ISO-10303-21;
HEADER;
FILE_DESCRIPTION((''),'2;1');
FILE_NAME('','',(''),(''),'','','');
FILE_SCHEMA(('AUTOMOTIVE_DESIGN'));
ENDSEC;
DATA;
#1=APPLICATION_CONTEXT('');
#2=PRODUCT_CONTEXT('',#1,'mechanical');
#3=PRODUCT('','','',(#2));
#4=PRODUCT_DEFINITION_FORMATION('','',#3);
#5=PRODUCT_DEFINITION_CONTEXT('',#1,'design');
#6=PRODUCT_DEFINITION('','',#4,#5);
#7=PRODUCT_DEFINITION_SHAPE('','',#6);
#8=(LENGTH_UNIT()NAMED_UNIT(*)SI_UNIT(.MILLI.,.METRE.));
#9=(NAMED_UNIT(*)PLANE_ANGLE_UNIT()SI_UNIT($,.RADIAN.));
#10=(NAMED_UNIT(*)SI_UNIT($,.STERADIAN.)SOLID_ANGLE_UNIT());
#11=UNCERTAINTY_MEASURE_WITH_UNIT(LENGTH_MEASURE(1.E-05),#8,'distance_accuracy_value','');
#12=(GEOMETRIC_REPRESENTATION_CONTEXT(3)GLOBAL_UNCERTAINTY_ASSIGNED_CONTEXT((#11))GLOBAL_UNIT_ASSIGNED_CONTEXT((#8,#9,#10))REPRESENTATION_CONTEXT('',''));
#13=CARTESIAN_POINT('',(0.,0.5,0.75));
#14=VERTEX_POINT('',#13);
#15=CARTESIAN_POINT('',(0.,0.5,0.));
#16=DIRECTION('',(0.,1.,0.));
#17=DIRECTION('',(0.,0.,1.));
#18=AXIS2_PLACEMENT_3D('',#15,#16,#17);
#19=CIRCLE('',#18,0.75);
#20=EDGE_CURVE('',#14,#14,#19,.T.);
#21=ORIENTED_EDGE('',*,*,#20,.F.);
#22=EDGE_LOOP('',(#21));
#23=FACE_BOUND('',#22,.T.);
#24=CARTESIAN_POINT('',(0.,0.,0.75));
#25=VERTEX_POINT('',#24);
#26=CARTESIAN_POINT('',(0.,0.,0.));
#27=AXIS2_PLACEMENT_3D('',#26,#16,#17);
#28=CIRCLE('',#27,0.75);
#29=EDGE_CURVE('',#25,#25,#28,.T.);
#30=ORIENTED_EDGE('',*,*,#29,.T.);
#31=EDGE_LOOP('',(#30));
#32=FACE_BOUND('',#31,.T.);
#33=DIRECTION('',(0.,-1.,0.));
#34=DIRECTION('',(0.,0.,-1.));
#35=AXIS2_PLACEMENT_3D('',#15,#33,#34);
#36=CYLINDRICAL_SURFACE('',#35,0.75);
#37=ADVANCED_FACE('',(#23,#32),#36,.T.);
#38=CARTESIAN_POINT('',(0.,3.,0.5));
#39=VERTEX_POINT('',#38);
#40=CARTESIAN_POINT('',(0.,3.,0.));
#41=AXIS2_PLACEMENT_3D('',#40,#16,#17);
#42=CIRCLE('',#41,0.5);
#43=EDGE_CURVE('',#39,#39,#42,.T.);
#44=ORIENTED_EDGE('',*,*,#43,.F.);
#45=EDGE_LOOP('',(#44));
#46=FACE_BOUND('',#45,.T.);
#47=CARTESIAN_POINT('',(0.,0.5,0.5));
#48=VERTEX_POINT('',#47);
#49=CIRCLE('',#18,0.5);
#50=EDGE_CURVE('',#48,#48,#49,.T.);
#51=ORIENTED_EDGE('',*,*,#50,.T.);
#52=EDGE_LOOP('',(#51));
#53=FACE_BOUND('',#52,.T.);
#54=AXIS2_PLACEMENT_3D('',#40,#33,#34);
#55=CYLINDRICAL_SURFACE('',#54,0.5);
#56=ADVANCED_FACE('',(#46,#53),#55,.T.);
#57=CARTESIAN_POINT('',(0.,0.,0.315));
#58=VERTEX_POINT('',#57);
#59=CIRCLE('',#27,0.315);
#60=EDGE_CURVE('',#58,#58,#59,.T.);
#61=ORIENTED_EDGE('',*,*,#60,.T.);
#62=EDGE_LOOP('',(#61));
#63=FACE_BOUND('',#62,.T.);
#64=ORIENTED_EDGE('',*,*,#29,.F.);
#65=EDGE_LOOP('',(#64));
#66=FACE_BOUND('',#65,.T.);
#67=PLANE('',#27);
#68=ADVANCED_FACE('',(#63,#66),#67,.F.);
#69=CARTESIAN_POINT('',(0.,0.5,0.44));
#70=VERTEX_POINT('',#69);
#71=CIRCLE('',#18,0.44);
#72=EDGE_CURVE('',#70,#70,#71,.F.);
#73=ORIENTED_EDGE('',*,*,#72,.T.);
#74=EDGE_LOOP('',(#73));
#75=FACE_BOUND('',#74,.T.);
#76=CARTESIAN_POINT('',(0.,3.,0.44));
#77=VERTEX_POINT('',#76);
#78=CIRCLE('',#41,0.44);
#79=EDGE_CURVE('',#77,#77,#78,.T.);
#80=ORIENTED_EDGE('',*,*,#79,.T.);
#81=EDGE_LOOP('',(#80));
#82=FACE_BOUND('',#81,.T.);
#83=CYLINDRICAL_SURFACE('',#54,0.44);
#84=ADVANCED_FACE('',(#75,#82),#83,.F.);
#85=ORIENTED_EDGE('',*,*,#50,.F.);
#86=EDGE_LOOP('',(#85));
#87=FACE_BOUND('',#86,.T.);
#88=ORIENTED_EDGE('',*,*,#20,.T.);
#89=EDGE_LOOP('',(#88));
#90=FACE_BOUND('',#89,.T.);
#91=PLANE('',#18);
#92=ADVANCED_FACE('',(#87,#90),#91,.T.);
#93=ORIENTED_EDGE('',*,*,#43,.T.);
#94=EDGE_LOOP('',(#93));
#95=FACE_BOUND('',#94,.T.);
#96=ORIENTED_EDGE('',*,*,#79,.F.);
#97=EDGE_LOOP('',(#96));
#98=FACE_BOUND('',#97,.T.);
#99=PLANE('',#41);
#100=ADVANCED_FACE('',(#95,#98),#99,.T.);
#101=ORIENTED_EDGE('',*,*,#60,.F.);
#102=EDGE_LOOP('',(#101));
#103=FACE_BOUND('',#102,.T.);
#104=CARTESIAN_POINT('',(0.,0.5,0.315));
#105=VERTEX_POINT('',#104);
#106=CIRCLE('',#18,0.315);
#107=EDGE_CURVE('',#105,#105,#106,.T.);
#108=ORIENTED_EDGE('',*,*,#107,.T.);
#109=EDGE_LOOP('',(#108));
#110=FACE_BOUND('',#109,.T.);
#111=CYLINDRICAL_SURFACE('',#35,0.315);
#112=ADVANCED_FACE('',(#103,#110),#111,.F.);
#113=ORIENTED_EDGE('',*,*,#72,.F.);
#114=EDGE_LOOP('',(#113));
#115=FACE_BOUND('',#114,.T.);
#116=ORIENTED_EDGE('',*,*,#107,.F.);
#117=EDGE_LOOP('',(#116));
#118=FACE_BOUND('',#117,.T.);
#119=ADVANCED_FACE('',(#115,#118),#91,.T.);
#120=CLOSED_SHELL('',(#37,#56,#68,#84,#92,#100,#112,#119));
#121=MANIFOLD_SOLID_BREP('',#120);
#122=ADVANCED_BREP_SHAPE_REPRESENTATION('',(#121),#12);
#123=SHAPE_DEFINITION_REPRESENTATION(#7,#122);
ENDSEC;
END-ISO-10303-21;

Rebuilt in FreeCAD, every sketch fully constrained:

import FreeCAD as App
import Part
import Sketcher
from FreeCAD import Vector
Q = App.Units.Quantity

doc = App.newDocument("Part")
body = doc.addObject("PartDesign::Body", "Body")

# Sketch on XZ plane
sketch1 = doc.addObject("Sketcher::SketchObject", "Sketch")
body.addObject(sketch1)
sketch1.AttachmentSupport = (doc.XZ_Plane, [""])
sketch1.MapMode = "FlatFace"
sketch1.addGeometry([
    Part.Circle(Vector(0, 0, 0), Vector(0, 0, 1), 0.75),
    Part.Circle(Vector(0, 0, 0), Vector(0, 0, 1), 0.32),
], False)
sketch1.addConstraint([
    Sketcher.Constraint("Coincident", 0, 3, -1, 1),
    Sketcher.Constraint("Coincident", 1, 3, -1, 1),
    Sketcher.Constraint("Diameter", 0, Q("1.5 mm")),
    Sketcher.Constraint("Diameter", 1, Q("0.63 mm")),
])
pad1 = doc.addObject("PartDesign::Pad", "Pad")
body.addObject(pad1)
pad1.Profile = sketch1
pad1.Length = 0.5
pad1.Reversed = True

# Sketch on XZ plane
sketch2 = doc.addObject("Sketcher::SketchObject", "Sketch001")
body.addObject(sketch2)
sketch2.AttachmentSupport = (doc.XZ_Plane, [""])
sketch2.MapMode = "FlatFace"
sketch2.AttachmentOffset = App.Placement(Vector(0, 0, -0.5), App.Rotation())
sketch2.addGeometry([
    Part.Circle(Vector(0, 0, 0), Vector(0, 0, 1), 0.5),
    Part.Circle(Vector(0, 0, 0), Vector(0, 0, 1), 0.44),
], False)
sketch2.addConstraint([
    Sketcher.Constraint("Coincident", 0, 3, -1, 1),
    Sketcher.Constraint("Coincident", 1, 3, -1, 1),
    Sketcher.Constraint("Diameter", 0, Q("1 mm")),
    Sketcher.Constraint("Diameter", 1, Q("0.88 mm")),
])
pad2 = doc.addObject("PartDesign::Pad", "Pad001")
body.addObject(pad2)
pad2.Profile = sketch2
pad2.Length = 2.5
pad2.Reversed = True

doc.recompute()
